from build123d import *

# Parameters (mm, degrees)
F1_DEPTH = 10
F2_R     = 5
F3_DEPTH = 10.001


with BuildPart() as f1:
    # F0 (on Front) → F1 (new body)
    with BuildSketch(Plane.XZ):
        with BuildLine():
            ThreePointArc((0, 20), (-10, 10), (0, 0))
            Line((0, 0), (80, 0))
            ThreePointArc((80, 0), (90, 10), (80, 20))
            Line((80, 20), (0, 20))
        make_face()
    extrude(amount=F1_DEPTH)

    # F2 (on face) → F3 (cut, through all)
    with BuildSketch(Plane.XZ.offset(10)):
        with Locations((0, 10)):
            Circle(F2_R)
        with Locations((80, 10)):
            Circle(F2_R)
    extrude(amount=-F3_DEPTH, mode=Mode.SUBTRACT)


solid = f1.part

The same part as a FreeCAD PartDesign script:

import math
import FreeCAD as App
import Part
import Sketcher
from FreeCAD import Vector
Q = App.Units.Quantity

doc = App.newDocument("Part")
body = doc.addObject("PartDesign::Body", "Body")

# Sketch on XZ plane
sketch1 = doc.addObject("Sketcher::SketchObject", "Sketch")
body.addObject(sketch1)
sketch1.AttachmentSupport = (doc.XZ_Plane, [""])
sketch1.MapMode = "FlatFace"
sketch1.addGeometry([
    Part.ArcOfCircle(Part.Circle(Vector(0, 10, 0), Vector(0, 0, 1), 10), math.radians(90), math.radians(270)),
    Part.LineSegment(Vector(0, 0, 0), Vector(80, 0, 0)),
    Part.ArcOfCircle(Part.Circle(Vector(80, 10, 0), Vector(0, 0, 1), 10), math.radians(-90), math.radians(90)),
    Part.LineSegment(Vector(80, 20, 0), Vector(0, 20, 0)),
], False)
sketch1.addConstraint([
    Sketcher.Constraint("Tangent", 0, 2, 1, 1),
    Sketcher.Constraint("Tangent", 1, 2, 2, 1),
    Sketcher.Constraint("Tangent", 2, 2, 3, 1),
    Sketcher.Constraint("Tangent", 3, 2, 0, 1),
    Sketcher.Constraint("Horizontal", 1),
    Sketcher.Constraint("Horizontal", 3),
    Sketcher.Constraint("Coincident", 0, 2, -1, 1),
    Sketcher.Constraint("Radius", 0, Q("10 mm")),
    Sketcher.Constraint("DistanceX", 1, 1, 1, 2, Q("80 mm")),
])
pad1 = doc.addObject("PartDesign::Pad", "Pad")
body.addObject(pad1)
pad1.Profile = sketch1
pad1.Length = 10

# Sketch on XZ plane
sketch2 = doc.addObject("Sketcher::SketchObject", "Sketch001")
body.addObject(sketch2)
sketch2.AttachmentSupport = (doc.XZ_Plane, [""])
sketch2.MapMode = "FlatFace"
sketch2.AttachmentOffset = App.Placement(Vector(0, 0, 10), App.Rotation())
sketch2.addGeometry([
    Part.Circle(Vector(0, 10, 0), Vector(0, 0, 1), 5),
    Part.Circle(Vector(80, 10, 0), Vector(0, 0, 1), 5),
], False)
sketch2.addConstraint([
    Sketcher.Constraint("Equal", 0, 1),
    Sketcher.Constraint("PointOnObject", 0, 3, -2),
    Sketcher.Constraint("Horizontal", 0, 3, 1, 3),
    Sketcher.Constraint("Diameter", 0, Q("10 mm")),
    Sketcher.Constraint("DistanceY", -1, 1, 0, 3, Q("10 mm")),
    Sketcher.Constraint("DistanceX", -1, 1, 1, 3, Q("80 mm")),
])
pocket1 = doc.addObject("PartDesign::Pocket", "Pocket")
body.addObject(pocket1)
pocket1.Profile = sketch2
pocket1.Type = "ThroughAll"

doc.recompute()
